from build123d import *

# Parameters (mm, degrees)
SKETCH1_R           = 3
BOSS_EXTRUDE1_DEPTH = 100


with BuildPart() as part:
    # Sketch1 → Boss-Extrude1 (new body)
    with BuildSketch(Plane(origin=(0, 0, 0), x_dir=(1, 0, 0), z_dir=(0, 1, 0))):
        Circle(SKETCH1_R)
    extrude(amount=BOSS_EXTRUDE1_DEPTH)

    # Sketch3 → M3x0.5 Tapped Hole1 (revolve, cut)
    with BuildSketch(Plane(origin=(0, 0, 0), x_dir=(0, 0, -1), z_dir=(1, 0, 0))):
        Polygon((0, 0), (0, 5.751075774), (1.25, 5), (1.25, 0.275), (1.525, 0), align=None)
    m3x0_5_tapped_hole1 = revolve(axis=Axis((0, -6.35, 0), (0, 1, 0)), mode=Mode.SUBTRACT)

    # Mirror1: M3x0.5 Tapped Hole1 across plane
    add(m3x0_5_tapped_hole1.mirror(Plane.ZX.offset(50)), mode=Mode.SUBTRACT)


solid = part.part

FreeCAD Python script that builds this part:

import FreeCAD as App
import Part
import Sketcher

V = App.Vector
Q = App.Units.Quantity

doc = App.newDocument("Part")
body = doc.addObject("PartDesign::Body", "Body")

# Sketch on XZ plane
sketch1 = doc.addObject("Sketcher::SketchObject", "Sketch")
body.addObject(sketch1)
sketch1.AttachmentSupport = (doc.XZ_Plane, [""])
sketch1.MapMode = "FlatFace"
sketch1.addGeometry(Part.Circle(V(0, 0, 0), V(0, 0, 1), 3), False)
sketch1.addConstraint(Sketcher.Constraint("Coincident", 0, 3, -1, 1))
sketch1.addConstraint(Sketcher.Constraint("Diameter", 0, 6.0))
pad1 = doc.addObject("PartDesign::Pad", "Pad")
body.addObject(pad1)
pad1.Profile = sketch1
pad1.Length = 100
pad1.Reversed = True

# Sketch on YZ plane
sketch2 = doc.addObject("Sketcher::SketchObject", "Sketch001")
body.addObject(sketch2)
sketch2.AttachmentSupport = (doc.YZ_Plane, [""])
sketch2.MapMode = "FlatFace"
sketch2.addGeometry(Part.LineSegment(V(5.75, 0, 0), V(0, 0, 0)), False)
sketch2.addGeometry(Part.LineSegment(V(0, 0, 0), V(0, -1.52, 0)), False)
sketch2.addGeometry(Part.LineSegment(V(0, -1.52, 0), V(0.28, -1.25, 0)), False)
sketch2.addGeometry(Part.LineSegment(V(0.28, -1.25, 0), V(5, -1.25, 0)), False)
sketch2.addGeometry(Part.LineSegment(V(5, -1.25, 0), V(5.75, 0, 0)), False)
sketch2.addConstraint(Sketcher.Constraint("Coincident", 0, 2, 1, 1))
sketch2.addConstraint(Sketcher.Constraint("Coincident", 1, 2, 2, 1))
sketch2.addConstraint(Sketcher.Constraint("Coincident", 2, 2, 3, 1))
sketch2.addConstraint(Sketcher.Constraint("Coincident", 3, 2, 4, 1))
sketch2.addConstraint(Sketcher.Constraint("Coincident", 4, 2, 0, 1))
sketch2.addConstraint(Sketcher.Constraint("Horizontal", 0))
sketch2.addConstraint(Sketcher.Constraint("Vertical", 1))
sketch2.addConstraint(Sketcher.Constraint("Horizontal", 3))
sketch2.addConstraint(Sketcher.Constraint("Coincident", 0, 2, -1, 1))
sketch2.addConstraint(Sketcher.Constraint("Angle", 2, Q("45 deg")))
sketch2.addConstraint(Sketcher.Constraint("Angle", 4, Q("59 deg")))
sketch2.addConstraint(Sketcher.Constraint("DistanceX", -1, 1, 3, 2, 5.0))
sketch2.addConstraint(Sketcher.Constraint("DistanceX", 3, 1, 3, 2, 4.725))
sketch2.addConstraint(Sketcher.Constraint("DistanceY", 1, 2, 1, 1, 1.525))
groove = doc.addObject("PartDesign::Groove", "Groove")
body.addObject(groove)
groove.Profile = sketch2
groove.ReferenceAxis = (sketch2, ["H_Axis"])
groove.Angle = 360
doc.recompute()

datumplane = doc.addObject("PartDesign::Plane", "DatumPlane")
body.addObject(datumplane)
datumplane.AttachmentSupport = (doc.XZ_Plane, [""])
datumplane.MapMode = "FlatFace"
datumplane.AttachmentOffset = App.Placement(V(0, 0, -50), App.Rotation())
mirrored = doc.addObject("PartDesign::Mirrored", "Mirrored")
body.addObject(mirrored)
mirrored.Originals = [groove]
mirrored.MirrorPlane = (datumplane, [""])
body.Tip = mirrored

doc.recompute()
